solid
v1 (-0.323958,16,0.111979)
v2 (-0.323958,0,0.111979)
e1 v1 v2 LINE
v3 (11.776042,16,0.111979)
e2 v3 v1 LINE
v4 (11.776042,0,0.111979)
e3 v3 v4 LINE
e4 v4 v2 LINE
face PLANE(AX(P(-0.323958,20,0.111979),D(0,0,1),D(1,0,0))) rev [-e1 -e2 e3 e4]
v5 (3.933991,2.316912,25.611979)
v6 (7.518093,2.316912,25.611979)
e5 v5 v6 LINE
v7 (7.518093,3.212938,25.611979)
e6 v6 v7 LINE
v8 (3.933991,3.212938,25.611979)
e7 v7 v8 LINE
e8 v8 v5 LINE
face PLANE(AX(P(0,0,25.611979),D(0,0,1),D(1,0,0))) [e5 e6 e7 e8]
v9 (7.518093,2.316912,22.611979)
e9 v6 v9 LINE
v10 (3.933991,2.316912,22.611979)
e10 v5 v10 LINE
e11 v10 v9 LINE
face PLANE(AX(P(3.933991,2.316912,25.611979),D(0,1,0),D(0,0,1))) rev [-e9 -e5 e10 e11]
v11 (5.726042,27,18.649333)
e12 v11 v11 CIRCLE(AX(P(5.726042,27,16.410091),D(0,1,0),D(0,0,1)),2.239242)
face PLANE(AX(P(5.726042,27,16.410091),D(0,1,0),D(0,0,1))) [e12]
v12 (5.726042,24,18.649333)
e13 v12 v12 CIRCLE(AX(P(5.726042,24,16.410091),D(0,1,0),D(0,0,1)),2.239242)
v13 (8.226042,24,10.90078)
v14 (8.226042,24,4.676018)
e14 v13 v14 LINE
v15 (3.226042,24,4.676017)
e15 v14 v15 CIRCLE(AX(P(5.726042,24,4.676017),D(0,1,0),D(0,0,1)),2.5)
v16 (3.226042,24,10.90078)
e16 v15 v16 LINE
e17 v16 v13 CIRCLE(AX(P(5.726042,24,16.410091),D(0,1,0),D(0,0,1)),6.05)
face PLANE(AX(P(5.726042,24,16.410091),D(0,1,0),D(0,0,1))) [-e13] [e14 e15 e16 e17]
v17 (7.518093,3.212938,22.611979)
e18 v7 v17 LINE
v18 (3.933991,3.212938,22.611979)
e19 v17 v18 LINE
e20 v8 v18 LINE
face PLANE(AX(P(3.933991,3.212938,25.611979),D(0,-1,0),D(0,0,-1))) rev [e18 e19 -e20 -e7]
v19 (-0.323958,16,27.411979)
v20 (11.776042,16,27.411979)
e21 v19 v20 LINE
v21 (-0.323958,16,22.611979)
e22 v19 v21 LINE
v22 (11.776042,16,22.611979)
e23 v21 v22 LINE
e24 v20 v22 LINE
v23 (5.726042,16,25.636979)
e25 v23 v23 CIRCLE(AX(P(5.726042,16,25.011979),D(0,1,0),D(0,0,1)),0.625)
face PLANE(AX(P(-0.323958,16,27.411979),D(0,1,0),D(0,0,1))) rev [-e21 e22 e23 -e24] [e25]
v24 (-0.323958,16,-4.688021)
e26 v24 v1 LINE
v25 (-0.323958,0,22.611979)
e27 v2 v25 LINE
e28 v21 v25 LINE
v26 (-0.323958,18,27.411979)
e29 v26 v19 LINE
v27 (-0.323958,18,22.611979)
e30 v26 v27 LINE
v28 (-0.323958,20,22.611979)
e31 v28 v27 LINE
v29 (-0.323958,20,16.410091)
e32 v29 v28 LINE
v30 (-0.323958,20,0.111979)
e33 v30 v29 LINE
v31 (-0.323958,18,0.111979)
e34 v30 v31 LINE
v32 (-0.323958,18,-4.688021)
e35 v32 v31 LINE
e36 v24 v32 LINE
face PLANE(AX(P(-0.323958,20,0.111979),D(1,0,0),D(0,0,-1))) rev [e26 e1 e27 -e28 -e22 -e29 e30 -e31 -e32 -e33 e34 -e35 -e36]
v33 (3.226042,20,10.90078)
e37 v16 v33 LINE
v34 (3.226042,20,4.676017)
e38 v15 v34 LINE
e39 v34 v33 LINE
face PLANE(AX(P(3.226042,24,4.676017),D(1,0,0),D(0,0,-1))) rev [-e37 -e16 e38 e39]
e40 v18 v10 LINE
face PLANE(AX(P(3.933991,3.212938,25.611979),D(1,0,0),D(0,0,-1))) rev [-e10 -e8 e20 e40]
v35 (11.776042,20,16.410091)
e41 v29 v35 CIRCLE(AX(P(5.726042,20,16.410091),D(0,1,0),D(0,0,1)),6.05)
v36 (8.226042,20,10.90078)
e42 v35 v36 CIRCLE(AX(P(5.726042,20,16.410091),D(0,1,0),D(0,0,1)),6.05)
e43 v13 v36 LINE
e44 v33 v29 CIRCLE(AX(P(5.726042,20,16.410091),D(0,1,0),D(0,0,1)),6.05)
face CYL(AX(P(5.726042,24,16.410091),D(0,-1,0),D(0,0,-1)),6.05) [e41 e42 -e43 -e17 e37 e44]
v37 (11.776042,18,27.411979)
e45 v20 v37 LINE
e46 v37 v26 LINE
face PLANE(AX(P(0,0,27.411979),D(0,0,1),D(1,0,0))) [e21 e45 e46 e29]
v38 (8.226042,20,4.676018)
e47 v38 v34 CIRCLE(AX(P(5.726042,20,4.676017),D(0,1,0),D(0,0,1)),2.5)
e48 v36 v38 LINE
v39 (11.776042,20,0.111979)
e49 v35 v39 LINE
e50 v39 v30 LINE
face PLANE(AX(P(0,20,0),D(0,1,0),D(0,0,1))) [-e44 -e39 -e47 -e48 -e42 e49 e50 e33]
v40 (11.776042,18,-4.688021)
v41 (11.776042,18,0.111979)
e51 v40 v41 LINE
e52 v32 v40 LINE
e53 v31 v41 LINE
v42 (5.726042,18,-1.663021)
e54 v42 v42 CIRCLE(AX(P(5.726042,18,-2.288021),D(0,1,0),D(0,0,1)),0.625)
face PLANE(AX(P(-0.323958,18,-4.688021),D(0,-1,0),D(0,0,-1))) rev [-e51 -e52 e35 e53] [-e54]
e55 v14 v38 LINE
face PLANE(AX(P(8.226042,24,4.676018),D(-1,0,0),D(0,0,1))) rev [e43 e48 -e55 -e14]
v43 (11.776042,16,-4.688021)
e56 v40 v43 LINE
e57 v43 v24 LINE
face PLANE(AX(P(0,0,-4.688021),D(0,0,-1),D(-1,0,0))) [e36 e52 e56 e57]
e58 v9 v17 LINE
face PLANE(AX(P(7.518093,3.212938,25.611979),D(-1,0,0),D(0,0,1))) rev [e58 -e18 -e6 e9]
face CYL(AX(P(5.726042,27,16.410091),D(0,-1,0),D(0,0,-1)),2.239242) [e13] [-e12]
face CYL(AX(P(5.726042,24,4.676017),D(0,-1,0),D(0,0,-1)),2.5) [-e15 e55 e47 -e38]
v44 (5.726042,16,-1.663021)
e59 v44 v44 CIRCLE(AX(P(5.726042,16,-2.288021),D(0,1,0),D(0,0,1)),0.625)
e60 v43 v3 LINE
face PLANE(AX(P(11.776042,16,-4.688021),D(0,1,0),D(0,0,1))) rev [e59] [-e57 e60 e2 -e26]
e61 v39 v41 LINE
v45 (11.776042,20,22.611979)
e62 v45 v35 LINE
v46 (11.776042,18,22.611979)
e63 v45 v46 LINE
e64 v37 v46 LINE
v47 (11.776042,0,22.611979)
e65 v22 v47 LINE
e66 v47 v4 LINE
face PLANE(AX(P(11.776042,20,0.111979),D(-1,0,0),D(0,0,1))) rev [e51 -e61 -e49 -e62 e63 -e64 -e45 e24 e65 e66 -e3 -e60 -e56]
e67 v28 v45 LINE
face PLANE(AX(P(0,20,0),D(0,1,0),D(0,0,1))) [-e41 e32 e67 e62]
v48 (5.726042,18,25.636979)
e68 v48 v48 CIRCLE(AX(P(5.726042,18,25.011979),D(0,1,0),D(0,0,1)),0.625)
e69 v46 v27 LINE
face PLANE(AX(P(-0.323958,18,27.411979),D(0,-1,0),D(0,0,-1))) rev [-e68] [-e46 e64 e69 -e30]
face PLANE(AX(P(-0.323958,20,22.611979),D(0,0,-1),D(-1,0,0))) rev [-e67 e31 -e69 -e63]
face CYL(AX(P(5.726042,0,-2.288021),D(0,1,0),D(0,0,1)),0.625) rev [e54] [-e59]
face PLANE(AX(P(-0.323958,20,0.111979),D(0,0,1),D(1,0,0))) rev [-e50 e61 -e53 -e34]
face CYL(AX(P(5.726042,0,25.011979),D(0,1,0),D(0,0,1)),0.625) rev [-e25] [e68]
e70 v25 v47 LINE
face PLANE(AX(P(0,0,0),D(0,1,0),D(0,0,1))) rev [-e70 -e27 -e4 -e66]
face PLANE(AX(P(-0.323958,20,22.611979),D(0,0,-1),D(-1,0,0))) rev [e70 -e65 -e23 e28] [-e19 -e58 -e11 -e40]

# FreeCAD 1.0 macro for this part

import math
import FreeCAD as App
import Part
import Sketcher
Q = App.Units.Quantity

doc = App.newDocument("Part")
body = doc.addObject("PartDesign::Body", "Body")

# Sketch on XZ plane
sketch1 = body.newObject("Sketcher::SketchObject", "Sketch")
sketch1.AttachmentSupport = (doc.getObject("XZ_Plane"), [""])
sketch1.MapMode = "FlatFace"
sketch1.addGeometry([
    Part.LineSegment(App.Vector(0, 0, 0), App.Vector(0, 23, 0)),
    Part.LineSegment(App.Vector(0, 23, 0), App.Vector(12, 23, 0)),
    Part.LineSegment(App.Vector(12, 23, 0), App.Vector(12, 0, 0)),
    Part.LineSegment(App.Vector(12, 0, 0), App.Vector(0, 0, 0)),
], False)
sketch1.addConstraint([
    Sketcher.Constraint("Coincident", 0, 2, 1, 1),
    Sketcher.Constraint("Coincident", 1, 2, 2, 1),
    Sketcher.Constraint("Coincident", 2, 2, 3, 1),
    Sketcher.Constraint("Coincident", 3, 2, 0, 1),
    Sketcher.Constraint("Vertical", 0),
    Sketcher.Constraint("Horizontal", 1),
    Sketcher.Constraint("Vertical", 2),
    Sketcher.Constraint("Horizontal", 3),
    Sketcher.Constraint("DistanceX", 1, 1, 1, 2, Q("12.1 mm")),
    Sketcher.Constraint("DistanceY", 0, 1, 0, 2, Q("22.5 mm")),
    Sketcher.Constraint("DistanceX", 0, 2, -1, 1, Q("0.323958 mm")),
    Sketcher.Constraint("DistanceY", -1, 1, 0, 2, Q("22.611979 mm")),
])
pad1 = body.newObject("PartDesign::Pad", "Pad")
pad1.Profile = sketch1
pad1.Length = 20
pad1.Reversed = True

# Sketch on XY plane
sketch2 = body.newObject("Sketcher::SketchObject", "Sketch001")
sketch2.AttachmentSupport = (doc.getObject("XY_Plane"), [""])
sketch2.MapMode = "FlatFace"
sketch2.AttachmentOffset = App.Placement(App.Vector(0, 0, 22.611979), App.Rotation())
sketch2.addGeometry([
    Part.LineSegment(App.Vector(-0.3, 18, 0), App.Vector(-0.3, 16, 0)),
    Part.LineSegment(App.Vector(-0.3, 16, 0), App.Vector(11.8, 16, 0)),
    Part.LineSegment(App.Vector(11.8, 16, 0), App.Vector(11.8, 18, 0)),
    Part.LineSegment(App.Vector(11.8, 18, 0), App.Vector(-0.3, 18, 0)),
], False)
sketch2.addConstraint([
    Sketcher.Constraint("Coincident", 0, 2, 1, 1),
    Sketcher.Constraint("Coincident", 1, 2, 2, 1),
    Sketcher.Constraint("Coincident", 2, 2, 3, 1),
    Sketcher.Constraint("Coincident", 3, 2, 0, 1),
    Sketcher.Constraint("Vertical", 0),
    Sketcher.Constraint("Horizontal", 1),
    Sketcher.Constraint("Vertical", 2),
    Sketcher.Constraint("Horizontal", 3),
    Sketcher.Constraint("DistanceY", 0, 2, 0, 1, Q("2 mm")),
    Sketcher.Constraint("DistanceX", 1, 1, 1, 2, Q("12.1 mm")),
    Sketcher.Constraint("DistanceY", -1, 1, 0, 2, Q("16 mm")),
    Sketcher.Constraint("DistanceX", 0, 2, -1, 1, Q("0.323958 mm")),
])
pad2 = body.newObject("PartDesign::Pad", "Pad001")
pad2.Profile = sketch2
pad2.Length = 4.8

# Sketch on XY plane
sketch3 = body.newObject("Sketcher::SketchObject", "Sketch002")
sketch3.AttachmentSupport = (doc.getObject("XY_Plane"), [""])
sketch3.MapMode = "FlatFace"
sketch3.AttachmentOffset = App.Placement(App.Vector(0, 0, 0.111979), App.Rotation())
sketch3.addGeometry([
    Part.LineSegment(App.Vector(11.8, 18, 0), App.Vector(11.8, 16, 0)),
    Part.LineSegment(App.Vector(11.8, 16, 0), App.Vector(-0.3, 16, 0)),
    Part.LineSegment(App.Vector(-0.3, 16, 0), App.Vector(-0.3, 18, 0)),
    Part.LineSegment(App.Vector(-0.3, 18, 0), App.Vector(11.8, 18, 0)),
], False)
sketch3.addConstraint([
    Sketcher.Constraint("Coincident", 0, 2, 1, 1),
    Sketcher.Constraint("Coincident", 1, 2, 2, 1),
    Sketcher.Constraint("Coincident", 2, 2, 3, 1),
    Sketcher.Constraint("Coincident", 3, 2, 0, 1),
    Sketcher.Constraint("Vertical", 0),
    Sketcher.Constraint("Horizontal", 1),
    Sketcher.Constraint("Vertical", 2),
    Sketcher.Constraint("Horizontal", 3),
    Sketcher.Constraint("DistanceY", 0, 2, 0, 1, Q("2 mm")),
    Sketcher.Constraint("DistanceX", 1, 2, 1, 1, Q("12.1 mm")),
    Sketcher.Constraint("DistanceY", -1, 1, 0, 2, Q("16 mm")),
    Sketcher.Constraint("DistanceX", -1, 1, 0, 2, Q("11.776042 mm")),
])
pad3 = body.newObject("PartDesign::Pad", "Pad002")
pad3.Profile = sketch3
pad3.Length = 4.8
pad3.Reversed = True

# Sketch on XZ plane
sketch4 = body.newObject("Sketcher::SketchObject", "Sketch003")
sketch4.AttachmentSupport = (doc.getObject("XZ_Plane"), [""])
sketch4.MapMode = "FlatFace"
sketch4.AttachmentOffset = App.Placement(App.Vector(0, 0, -18), App.Rotation())
sketch4.addGeometry([
    Part.Circle(App.Vector(5.7, -2.3, 0), App.Vector(0, 0, 1), 0.6),
    Part.Circle(App.Vector(5.7, 25, 0), App.Vector(0, 0, 1), 0.6),
], False)
sketch4.addConstraint([
    Sketcher.Constraint("Equal", 0, 1),
    Sketcher.Constraint("Vertical", 0, 3, 1, 3),
    Sketcher.Constraint("Diameter", 0, Q("1.25 mm")),
    Sketcher.Constraint("DistanceY", 0, 3, 1, 3, Q("27.3 mm")),
    Sketcher.Constraint("DistanceX", -1, 1, 0, 3, Q("5.726042 mm")),
    Sketcher.Constraint("DistanceY", 0, 3, -1, 1, Q("2.288021 mm")),
])
pocket1 = body.newObject("PartDesign::Pocket", "Pocket")
pocket1.Profile = sketch4
pocket1.Type = "ThroughAll"
pocket1.Reversed = True

# Sketch on XZ plane
sketch5 = body.newObject("Sketcher::SketchObject", "Sketch004")
sketch5.AttachmentSupport = (doc.getObject("XZ_Plane"), [""])
sketch5.MapMode = "FlatFace"
sketch5.AttachmentOffset = App.Placement(App.Vector(0, 0, -20), App.Rotation())
sketch5.addGeometry([
    Part.LineSegment(App.Vector(8.2, 10.9, 0), App.Vector(8.2, 4.7, 0)),
    Part.ArcOfCircle(Part.Circle(App.Vector(5.7, 4.7, 0), App.Vector(0, 0, 1), 2.5), math.radians(-180), math.radians(0)),
    Part.LineSegment(App.Vector(3.2, 4.7, 0), App.Vector(3.2, 10.9, 0)),
    Part.ArcOfCircle(Part.Circle(App.Vector(5.7, 16.4, 0), App.Vector(0, 0, 1), 6), math.radians(-66), math.radians(246)),
], False)
sketch5.addConstraint([
    Sketcher.Constraint("Tangent", 0, 2, 1, 2),
    Sketcher.Constraint("Tangent", 1, 1, 2, 1),
    Sketcher.Constraint("Coincident", 2, 2, 3, 2),
    Sketcher.Constraint("Coincident", 3, 1, 0, 1),
    Sketcher.Constraint("Vertical", 0),
    Sketcher.Constraint("Vertical", 2),
    Sketcher.Constraint("Horizontal", 2, 2, 3, 1),
    Sketcher.Constraint("Radius", 1, Q("2.5 mm")),
    Sketcher.Constraint("Radius", 3, Q("6.05 mm")),
    Sketcher.Constraint("DistanceY", 0, 2, 0, 1, Q("6.224763 mm")),
    Sketcher.Constraint("DistanceX", -1, 1, 1, 3, Q("5.726042 mm")),
    Sketcher.Constraint("DistanceY", -1, 1, 3, 3, Q("16.410091 mm")),
])
pad4 = body.newObject("PartDesign::Pad", "Pad003")
pad4.Profile = sketch5
pad4.Length = 4
pad4.Reversed = True

# Sketch on XZ plane
sketch6 = body.newObject("Sketcher::SketchObject", "Sketch005")
sketch6.AttachmentSupport = (doc.getObject("XZ_Plane"), [""])
sketch6.MapMode = "FlatFace"
sketch6.AttachmentOffset = App.Placement(App.Vector(0, 0, -24), App.Rotation())
sketch6.addGeometry(Part.Circle(App.Vector(5.7, 16.4, 0), App.Vector(0, 0, 1), 2.2), False)
sketch6.addConstraint([
    Sketcher.Constraint("Diameter", 0, Q("4.478484 mm")),
    Sketcher.Constraint("DistanceX", -1, 1, 0, 3, Q("5.726042 mm")),
    Sketcher.Constraint("DistanceY", -1, 1, 0, 3, Q("16.410091 mm")),
])
pad5 = body.newObject("PartDesign::Pad", "Pad004")
pad5.Profile = sketch6
pad5.Length = 3
pad5.Reversed = True

# Sketch on XY plane
sketch7 = body.newObject("Sketcher::SketchObject", "Sketch006")
sketch7.AttachmentSupport = (doc.getObject("XY_Plane"), [""])
sketch7.MapMode = "FlatFace"
sketch7.AttachmentOffset = App.Placement(App.Vector(0, 0, 22.611979), App.Rotation())
sketch7.addGeometry([
    Part.LineSegment(App.Vector(3.9, 3.2, 0), App.Vector(3.9, 2.3, 0)),
    Part.LineSegment(App.Vector(3.9, 2.3, 0), App.Vector(7.5, 2.3, 0)),
    Part.LineSegment(App.Vector(7.5, 2.3, 0), App.Vector(7.5, 3.2, 0)),
    Part.LineSegment(App.Vector(7.5, 3.2, 0), App.Vector(3.9, 3.2, 0)),
], False)
sketch7.addConstraint([
    Sketcher.Constraint("Coincident", 0, 2, 1, 1),
    Sketcher.Constraint("Coincident", 1, 2, 2, 1),
    Sketcher.Constraint("Coincident", 2, 2, 3, 1),
    Sketcher.Constraint("Coincident", 3, 2, 0, 1),
    Sketcher.Constraint("Vertical", 0),
    Sketcher.Constraint("Horizontal", 1),
    Sketcher.Constraint("Vertical", 2),
    Sketcher.Constraint("Horizontal", 3),
    Sketcher.Constraint("DistanceX", 1, 1, 1, 2, Q("3.584102 mm")),
    Sketcher.Constraint("DistanceY", 0, 2, 0, 1, Q("0.896026 mm")),
    Sketcher.Constraint("DistanceX", -1, 1, 0, 2, Q("3.933991 mm")),
    Sketcher.Constraint("DistanceY", -1, 1, 0, 2, Q("2.316912 mm")),
])
pad6 = body.newObject("PartDesign::Pad", "Pad005")
pad6.Profile = sketch7
pad6.Length = 3

doc.recompute()
